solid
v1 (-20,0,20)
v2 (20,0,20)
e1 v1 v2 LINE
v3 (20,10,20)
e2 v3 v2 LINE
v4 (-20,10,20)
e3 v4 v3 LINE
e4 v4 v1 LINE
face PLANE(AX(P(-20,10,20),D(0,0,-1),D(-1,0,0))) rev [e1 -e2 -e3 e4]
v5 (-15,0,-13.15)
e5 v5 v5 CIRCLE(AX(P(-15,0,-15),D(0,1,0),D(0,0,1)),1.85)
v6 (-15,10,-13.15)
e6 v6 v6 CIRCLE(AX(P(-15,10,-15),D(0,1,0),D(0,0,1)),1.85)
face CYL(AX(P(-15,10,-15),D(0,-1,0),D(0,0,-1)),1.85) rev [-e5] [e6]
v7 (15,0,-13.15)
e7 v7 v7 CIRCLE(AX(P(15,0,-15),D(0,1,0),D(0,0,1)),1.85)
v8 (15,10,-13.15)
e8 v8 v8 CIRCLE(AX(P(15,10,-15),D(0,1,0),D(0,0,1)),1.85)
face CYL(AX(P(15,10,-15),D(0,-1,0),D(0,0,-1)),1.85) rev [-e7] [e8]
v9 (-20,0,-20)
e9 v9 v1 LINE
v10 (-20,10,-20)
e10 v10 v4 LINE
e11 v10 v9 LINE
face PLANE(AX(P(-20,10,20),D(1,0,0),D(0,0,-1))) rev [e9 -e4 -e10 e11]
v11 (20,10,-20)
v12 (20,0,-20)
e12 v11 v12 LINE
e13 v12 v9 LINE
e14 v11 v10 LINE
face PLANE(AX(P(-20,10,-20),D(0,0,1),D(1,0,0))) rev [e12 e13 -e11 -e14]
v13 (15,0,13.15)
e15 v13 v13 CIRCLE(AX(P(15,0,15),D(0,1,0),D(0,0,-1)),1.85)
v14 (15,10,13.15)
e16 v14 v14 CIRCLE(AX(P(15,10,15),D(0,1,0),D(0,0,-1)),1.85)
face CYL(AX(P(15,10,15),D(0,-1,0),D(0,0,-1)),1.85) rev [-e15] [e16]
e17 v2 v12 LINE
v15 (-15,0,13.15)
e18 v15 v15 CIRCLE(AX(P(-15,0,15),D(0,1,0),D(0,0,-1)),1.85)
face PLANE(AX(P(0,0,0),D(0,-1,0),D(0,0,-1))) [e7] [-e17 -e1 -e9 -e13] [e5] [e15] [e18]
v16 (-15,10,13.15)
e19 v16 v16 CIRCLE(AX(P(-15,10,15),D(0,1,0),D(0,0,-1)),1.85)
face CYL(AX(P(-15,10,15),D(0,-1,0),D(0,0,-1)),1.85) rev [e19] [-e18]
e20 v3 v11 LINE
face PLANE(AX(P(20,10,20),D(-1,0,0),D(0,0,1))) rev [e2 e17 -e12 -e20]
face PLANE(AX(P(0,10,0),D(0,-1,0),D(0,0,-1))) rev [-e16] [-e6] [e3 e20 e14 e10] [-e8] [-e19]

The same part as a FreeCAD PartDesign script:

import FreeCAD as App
import Part
import Sketcher
from FreeCAD import Vector
Q = App.Units.Quantity

doc = App.newDocument("Part")
body = doc.addObject("PartDesign::Body", "Body")

# Sketch on XZ plane
sketch1 = body.newObject("Sketcher::SketchObject", "Sketch")
sketch1.AttachmentSupport = (doc.getObject("XZ_Plane"), [""])
sketch1.MapMode = "FlatFace"
sketch1.addGeometry([
    Part.LineSegment(Vector(-20, -20, 0), Vector(-20, 20, 0)),  # 0
    Part.LineSegment(Vector(-20, 20, 0), Vector(20, 20, 0)),  # 1
    Part.LineSegment(Vector(20, 20, 0), Vector(20, -20, 0)),  # 2
    Part.LineSegment(Vector(20, -20, 0), Vector(-20, -20, 0)),  # 3
    Part.Circle(Vector(-15, 15, 0), Vector(0, 0, 1), 1.9),  # 4
    Part.Circle(Vector(15, 15, 0), Vector(0, 0, 1), 1.9),  # 5
    Part.Circle(Vector(-15, -15, 0), Vector(0, 0, 1), 1.9),  # 6
    Part.Circle(Vector(15, -15, 0), Vector(0, 0, 1), 1.9),  # 7
], False)
sketch1.addConstraint([
    Sketcher.Constraint("Coincident", 0, 2, 1, 1),
    Sketcher.Constraint("Coincident", 1, 2, 2, 1),
    Sketcher.Constraint("Coincident", 2, 2, 3, 1),
    Sketcher.Constraint("Coincident", 3, 2, 0, 1),
    Sketcher.Constraint("Vertical", 0),
    Sketcher.Constraint("Horizontal", 1),
    Sketcher.Constraint("Vertical", 2),
    Sketcher.Constraint("Horizontal", 3),
    Sketcher.Constraint("Equal", 4, 5),
    Sketcher.Constraint("Equal", 5, 6),
    Sketcher.Constraint("Equal", 6, 7),
    Sketcher.Constraint("Symmetric", 5, 3, 6, 3, -1, 1),
    Sketcher.Constraint("Symmetric", 4, 3, 7, 3, -1, 1),
    Sketcher.Constraint("Symmetric", 0, 2, 2, 2, -1, 1),
    Sketcher.Constraint("Symmetric", 4, 3, 5, 3, -2),
    Sketcher.Constraint("Equal", 3, 0),
    Sketcher.Constraint("Diameter", 4, Q("3.7 mm")),
    Sketcher.Constraint("DistanceX", 1, 1, 1, 2, Q("40 mm")),
    Sketcher.Constraint("DistanceX", 4, 3, -1, 1, Q("15 mm")),
    Sketcher.Constraint("DistanceY", -1, 1, 4, 3, Q("15 mm")),
])
pad1 = body.newObject("PartDesign::Pad", "Pad")
pad1.Profile = sketch1
pad1.Length = 10
pad1.Reversed = True

doc.recompute()
